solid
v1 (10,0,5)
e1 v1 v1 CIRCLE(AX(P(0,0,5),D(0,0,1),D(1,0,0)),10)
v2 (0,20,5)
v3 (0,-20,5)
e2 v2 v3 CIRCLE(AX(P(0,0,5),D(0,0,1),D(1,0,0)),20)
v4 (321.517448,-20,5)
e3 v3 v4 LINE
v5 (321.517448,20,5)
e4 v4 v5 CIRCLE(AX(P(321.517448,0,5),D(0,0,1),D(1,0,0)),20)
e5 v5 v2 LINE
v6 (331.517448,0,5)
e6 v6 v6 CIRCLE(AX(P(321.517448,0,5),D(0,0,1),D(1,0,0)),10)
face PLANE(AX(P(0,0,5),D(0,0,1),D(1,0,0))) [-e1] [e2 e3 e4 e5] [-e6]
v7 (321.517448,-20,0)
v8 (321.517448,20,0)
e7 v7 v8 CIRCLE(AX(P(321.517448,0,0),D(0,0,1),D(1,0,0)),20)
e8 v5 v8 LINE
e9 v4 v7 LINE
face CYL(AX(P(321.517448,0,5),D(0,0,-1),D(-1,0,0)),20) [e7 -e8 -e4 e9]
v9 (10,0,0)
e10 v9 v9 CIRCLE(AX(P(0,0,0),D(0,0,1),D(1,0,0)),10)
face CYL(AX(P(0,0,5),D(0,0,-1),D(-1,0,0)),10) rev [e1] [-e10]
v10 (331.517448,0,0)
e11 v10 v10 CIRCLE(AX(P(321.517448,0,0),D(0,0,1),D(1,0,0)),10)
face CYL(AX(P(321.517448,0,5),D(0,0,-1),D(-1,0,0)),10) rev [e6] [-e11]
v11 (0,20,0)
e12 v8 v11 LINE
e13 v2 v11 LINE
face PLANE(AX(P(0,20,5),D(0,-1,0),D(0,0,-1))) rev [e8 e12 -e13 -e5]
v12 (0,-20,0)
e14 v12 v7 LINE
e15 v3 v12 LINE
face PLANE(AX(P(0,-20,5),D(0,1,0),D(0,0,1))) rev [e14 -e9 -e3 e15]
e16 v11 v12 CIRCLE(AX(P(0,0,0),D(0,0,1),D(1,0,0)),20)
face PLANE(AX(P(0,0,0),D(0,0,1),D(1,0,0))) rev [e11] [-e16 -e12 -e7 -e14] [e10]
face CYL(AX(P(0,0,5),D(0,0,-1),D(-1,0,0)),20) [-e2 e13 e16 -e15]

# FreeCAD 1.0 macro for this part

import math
import FreeCAD as App
import Part
import Sketcher
from FreeCAD import Vector
Q = App.Units.Quantity

doc = App.newDocument("Part")
params = doc.addObject("Spreadsheet::Sheet", "Params")
for row, (alias, value) in enumerate([
    ("sketch1_diameter", "20 mm"),
    ("sketch1_radius", "20 mm"),
    ("pad1_length", "5 mm"),
], start=1):
    params.set(f"A{row}", alias)
    params.set(f"B{row}", "=" + value)
    params.setAlias(f"B{row}", alias)

body = doc.addObject("PartDesign::Body", "Body")

# Sketch on XY plane
sketch1 = body.newObject("Sketcher::SketchObject", "Sketch")
sketch1.AttachmentSupport = (doc.getObject("XY_Plane"), [""])
sketch1.MapMode = "FlatFace"
sketch1.addGeometry(Part.LineSegment(Vector(322, 20, 0), Vector(0, 20, 0)), False)
sketch1.addGeometry(Part.ArcOfCircle(Part.Circle(Vector(0, 0, 0), Vector(0, 0, 1), 20), math.radians(90), math.radians(270)), False)
sketch1.addGeometry(Part.LineSegment(Vector(0, -20, 0), Vector(322, -20, 0)), False)
sketch1.addGeometry(Part.ArcOfCircle(Part.Circle(Vector(322, 0, 0), Vector(0, 0, 1), 20), math.radians(-90), math.radians(90)), False)
sketch1.addGeometry(Part.Circle(Vector(322, 0, 0), Vector(0, 0, 1), 10), False)
sketch1.addGeometry(Part.Circle(Vector(0, 0, 0), Vector(0, 0, 1), 10), False)
sketch1.addConstraint(Sketcher.Constraint("Tangent", 0, 2, 1, 1))
sketch1.addConstraint(Sketcher.Constraint("Tangent", 1, 2, 2, 1))
sketch1.addConstraint(Sketcher.Constraint("Tangent", 2, 2, 3, 1))
sketch1.addConstraint(Sketcher.Constraint("Tangent", 3, 2, 0, 1))
sketch1.addConstraint(Sketcher.Constraint("Horizontal", 0))
sketch1.addConstraint(Sketcher.Constraint("Horizontal", 2))
sketch1.addConstraint(Sketcher.Constraint("Coincident", 1, 3, -1, 1))
sketch1.addConstraint(Sketcher.Constraint("Coincident", 5, 3, -1, 1))
sketch1.addConstraint(Sketcher.Constraint("Coincident", 4, 3, 3, 3))
sketch1.addConstraint(Sketcher.Constraint("Equal", 4, 5))
sketch1.addConstraint(Sketcher.Constraint("Diameter", 4, Q("20 mm")))
sketch1.addConstraint(Sketcher.Constraint("Radius", 1, Q("20 mm")))
sketch1.addConstraint(Sketcher.Constraint("DistanceX", 0, 2, 0, 1, Q("321.517448 mm")))
sketch1.setExpression("Constraints[10]", "Params.sketch1_diameter")
sketch1.setExpression("Constraints[11]", "Params.sketch1_radius")
pad1 = body.newObject("PartDesign::Pad", "Pad")
pad1.Profile = sketch1
pad1.setExpression("Length", "Params.pad1_length")

doc.recompute()
